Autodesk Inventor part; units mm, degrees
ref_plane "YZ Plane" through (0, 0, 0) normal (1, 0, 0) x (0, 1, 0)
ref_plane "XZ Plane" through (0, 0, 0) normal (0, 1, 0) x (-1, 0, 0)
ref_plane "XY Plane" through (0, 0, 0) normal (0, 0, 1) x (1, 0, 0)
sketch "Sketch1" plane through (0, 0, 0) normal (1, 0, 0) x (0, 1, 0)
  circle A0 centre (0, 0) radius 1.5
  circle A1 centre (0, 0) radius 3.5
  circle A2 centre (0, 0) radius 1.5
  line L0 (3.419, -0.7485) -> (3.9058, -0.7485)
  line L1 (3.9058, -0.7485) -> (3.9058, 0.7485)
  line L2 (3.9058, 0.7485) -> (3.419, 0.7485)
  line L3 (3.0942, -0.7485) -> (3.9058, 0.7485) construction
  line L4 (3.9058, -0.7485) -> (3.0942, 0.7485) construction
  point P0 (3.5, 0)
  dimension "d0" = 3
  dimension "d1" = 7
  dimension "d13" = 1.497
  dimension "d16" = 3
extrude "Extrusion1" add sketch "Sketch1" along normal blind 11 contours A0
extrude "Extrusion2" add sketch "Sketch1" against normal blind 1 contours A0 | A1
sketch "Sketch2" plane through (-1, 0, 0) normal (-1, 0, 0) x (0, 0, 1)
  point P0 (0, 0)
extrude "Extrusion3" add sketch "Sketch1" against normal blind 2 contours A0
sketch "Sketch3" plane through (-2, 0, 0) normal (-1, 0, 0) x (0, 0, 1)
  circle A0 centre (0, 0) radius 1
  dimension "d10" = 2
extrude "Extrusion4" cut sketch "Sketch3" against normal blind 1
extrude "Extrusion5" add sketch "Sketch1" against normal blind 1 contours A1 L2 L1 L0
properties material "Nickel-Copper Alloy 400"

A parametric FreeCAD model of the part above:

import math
import FreeCAD as App
import Part
import Sketcher

doc = App.newDocument("Part")
body = doc.addObject("PartDesign::Body", "Body")

# Sketch on YZ plane
sketch1 = body.newObject("Sketcher::SketchObject", "Sketch")
sketch1.AttachmentSupport = (doc.getObject("YZ_Plane"), [""])
sketch1.MapMode = "FlatFace"
sketch1.addGeometry(Part.Circle(App.Vector(0, 0, 0), App.Vector(0, 0, 1), 1.5), False)
sketch1.addConstraint([
    Sketcher.Constraint("Coincident", 0, 3, -1, 1),
    Sketcher.Constraint("Diameter", 0, 3.0),
])
pad1 = body.newObject("PartDesign::Pad", "Pad")
pad1.Profile = sketch1
pad1.Length = 11

# Sketch on YZ plane
sketch2 = body.newObject("Sketcher::SketchObject", "Sketch001")
sketch2.AttachmentSupport = (doc.getObject("YZ_Plane"), [""])
sketch2.MapMode = "FlatFace"
sketch2.addGeometry(Part.Circle(App.Vector(0, 0, 0), App.Vector(0, 0, 1), 3.5), False)
sketch2.addConstraint([
    Sketcher.Constraint("Coincident", 0, 3, -1, 1),
    Sketcher.Constraint("Diameter", 0, 7.0),
])
pad2 = body.newObject("PartDesign::Pad", "Pad001")
pad2.Profile = sketch2
pad2.Length = 1
pad2.Reversed = True

# Sketch on YZ plane
sketch3 = body.newObject("Sketcher::SketchObject", "Sketch002")
sketch3.AttachmentSupport = (doc.getObject("YZ_Plane"), [""])
sketch3.MapMode = "FlatFace"
sketch3.addGeometry(Part.Circle(App.Vector(0, 0, 0), App.Vector(0, 0, 1), 1.5), False)
sketch3.addConstraint([
    Sketcher.Constraint("Coincident", 0, 3, -1, 1),
    Sketcher.Constraint("Diameter", 0, 3.0),
])
pad3 = body.newObject("PartDesign::Pad", "Pad002")
pad3.Profile = sketch3
pad3.Length = 2
pad3.Reversed = True

# Sketch on YZ plane
sketch4 = body.newObject("Sketcher::SketchObject", "Sketch003")
sketch4.AttachmentSupport = (doc.getObject("YZ_Plane"), [""])
sketch4.MapMode = "FlatFace"
sketch4.AttachmentOffset = App.Placement(App.Vector(0, 0, -2), App.Rotation())
sketch4.addGeometry(Part.Circle(App.Vector(0, 0, 0), App.Vector(0, 0, 1), 1), False)
sketch4.addConstraint([
    Sketcher.Constraint("Coincident", 0, 3, -1, 1),
    Sketcher.Constraint("Diameter", 0, 2.0),
])
pocket1 = body.newObject("PartDesign::Pocket", "Pocket")
pocket1.Profile = sketch4
pocket1.Length = 1
pocket1.Reversed = True

# Sketch on YZ plane
sketch5 = body.newObject("Sketcher::SketchObject", "Sketch004")
sketch5.AttachmentSupport = (doc.getObject("YZ_Plane"), [""])
sketch5.MapMode = "FlatFace"
sketch5.addGeometry([
    Part.ArcOfCircle(Part.Circle(App.Vector(0, 0, 0), App.Vector(0, 0, 1), 3.5), math.radians(-12), math.radians(12)),
    Part.LineSegment(App.Vector(3.42, -0.75, 0), App.Vector(3.91, -0.75, 0)),
    Part.LineSegment(App.Vector(3.91, -0.75, 0), App.Vector(3.91, 0.75, 0)),
    Part.LineSegment(App.Vector(3.91, 0.75, 0), App.Vector(3.42, 0.75, 0)),
], False)
sketch5.addConstraint([
    Sketcher.Constraint("Coincident", 0, 1, 1, 1),
    Sketcher.Constraint("Coincident", 1, 2, 2, 1),
    Sketcher.Constraint("Coincident", 2, 2, 3, 1),
    Sketcher.Constraint("Coincident", 3, 2, 0, 2),
    Sketcher.Constraint("Horizontal", 1),
    Sketcher.Constraint("Vertical", 2),
    Sketcher.Constraint("Horizontal", 3),
    Sketcher.Constraint("Coincident", 0, 3, -1, 1),
    Sketcher.Constraint("Vertical", 0, 1, 3, 2),
    Sketcher.Constraint("Radius", 0, 3.5),
    Sketcher.Constraint("DistanceY", 2, 1, 2, 2, 1.497),
    Sketcher.Constraint("DistanceX", 1, 1, 1, 2, 0.4868),
])
pad4 = body.newObject("PartDesign::Pad", "Pad003")
pad4.Profile = sketch5
pad4.Length = 1
pad4.Reversed = True

doc.recompute()
